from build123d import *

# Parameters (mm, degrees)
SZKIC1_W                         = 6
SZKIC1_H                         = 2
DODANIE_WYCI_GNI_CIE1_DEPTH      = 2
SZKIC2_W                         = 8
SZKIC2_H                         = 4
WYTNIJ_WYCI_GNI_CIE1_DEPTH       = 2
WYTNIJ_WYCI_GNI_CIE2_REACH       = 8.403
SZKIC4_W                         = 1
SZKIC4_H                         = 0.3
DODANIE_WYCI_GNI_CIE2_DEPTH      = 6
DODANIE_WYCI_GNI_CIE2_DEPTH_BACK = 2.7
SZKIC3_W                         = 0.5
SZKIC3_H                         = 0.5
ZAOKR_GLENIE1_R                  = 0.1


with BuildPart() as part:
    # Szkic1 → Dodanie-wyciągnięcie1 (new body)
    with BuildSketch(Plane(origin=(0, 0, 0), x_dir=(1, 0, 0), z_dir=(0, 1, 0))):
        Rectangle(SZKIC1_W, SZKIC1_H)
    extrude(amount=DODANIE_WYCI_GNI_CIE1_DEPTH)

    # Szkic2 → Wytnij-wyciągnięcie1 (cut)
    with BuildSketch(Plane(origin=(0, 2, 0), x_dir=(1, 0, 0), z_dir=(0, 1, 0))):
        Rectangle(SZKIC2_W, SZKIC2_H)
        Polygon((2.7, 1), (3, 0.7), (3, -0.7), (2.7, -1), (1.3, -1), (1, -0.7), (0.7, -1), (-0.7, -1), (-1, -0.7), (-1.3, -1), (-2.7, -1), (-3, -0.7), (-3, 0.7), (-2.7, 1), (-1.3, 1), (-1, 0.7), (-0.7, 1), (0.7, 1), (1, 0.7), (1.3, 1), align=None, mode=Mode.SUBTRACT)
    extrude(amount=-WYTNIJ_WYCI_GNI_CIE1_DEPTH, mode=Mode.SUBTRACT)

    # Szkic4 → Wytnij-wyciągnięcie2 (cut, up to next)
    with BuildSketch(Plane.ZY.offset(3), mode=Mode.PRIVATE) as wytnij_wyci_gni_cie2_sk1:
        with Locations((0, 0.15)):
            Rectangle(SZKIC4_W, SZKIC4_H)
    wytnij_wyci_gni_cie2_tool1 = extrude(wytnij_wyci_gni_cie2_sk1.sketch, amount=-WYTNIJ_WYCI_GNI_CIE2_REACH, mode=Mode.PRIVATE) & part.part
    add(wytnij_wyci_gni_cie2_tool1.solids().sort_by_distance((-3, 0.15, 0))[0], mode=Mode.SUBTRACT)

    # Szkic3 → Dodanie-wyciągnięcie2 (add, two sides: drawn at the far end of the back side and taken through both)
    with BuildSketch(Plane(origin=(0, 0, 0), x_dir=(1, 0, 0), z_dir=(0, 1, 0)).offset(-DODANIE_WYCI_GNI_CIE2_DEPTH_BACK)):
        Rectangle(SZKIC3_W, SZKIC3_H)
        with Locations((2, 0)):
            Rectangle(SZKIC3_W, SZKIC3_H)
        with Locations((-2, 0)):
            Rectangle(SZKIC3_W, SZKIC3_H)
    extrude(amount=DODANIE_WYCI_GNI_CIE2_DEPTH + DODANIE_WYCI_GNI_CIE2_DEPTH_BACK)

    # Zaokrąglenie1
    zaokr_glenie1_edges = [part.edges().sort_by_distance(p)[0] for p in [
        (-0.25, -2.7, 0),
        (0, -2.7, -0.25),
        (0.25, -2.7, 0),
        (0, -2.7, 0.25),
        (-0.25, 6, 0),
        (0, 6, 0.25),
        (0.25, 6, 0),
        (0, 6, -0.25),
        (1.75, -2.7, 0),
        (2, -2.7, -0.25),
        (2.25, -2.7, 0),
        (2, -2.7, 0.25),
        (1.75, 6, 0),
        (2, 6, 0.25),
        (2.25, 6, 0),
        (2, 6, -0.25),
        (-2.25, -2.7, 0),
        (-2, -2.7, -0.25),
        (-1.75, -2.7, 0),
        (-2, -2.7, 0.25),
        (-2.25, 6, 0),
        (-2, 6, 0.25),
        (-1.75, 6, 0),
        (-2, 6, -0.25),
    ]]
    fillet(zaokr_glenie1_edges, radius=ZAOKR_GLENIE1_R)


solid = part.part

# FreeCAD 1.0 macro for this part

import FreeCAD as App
import Part
import Sketcher
from FreeCAD import Vector
Q = App.Units.Quantity


def edges_at(feature, points):
    """Names of the edges that pass closest to the given points."""
    edges = feature.Shape.Edges
    near = lambda p: min(range(len(edges)), key=lambda i: edges[i].distToShape(Part.Vertex(*p))[0])
    return sorted({f"Edge{near(p) + 1}" for p in points})


def add_polygon(sketch, points):
    """Adds a closed chain of lines whose ends are joined by coincident constraints."""
    first, n = sketch.GeometryCount, len(points)
    for a, b in zip(points, points[1:] + points[:1]):
        sketch.addGeometry(Part.LineSegment(App.Vector(*a, 0), App.Vector(*b, 0)), False)
    for i in range(n):
        sketch.addConstraint(Sketcher.Constraint("Coincident", first + i, 2, first + (i + 1) % n, 1))

doc = App.newDocument("Part")
body = doc.addObject("PartDesign::Body", "Body")

sketch1 = body.newObject("Sketcher::SketchObject", "Sketch")
sketch1.AttachmentSupport = (doc.getObject("XZ_Plane"), [""])
sketch1.MapMode = "FlatFace"
add_polygon(sketch1, [(-3, -1), (-3, 1), (3, 1), (3, -1)])
sketch1.addConstraint([
    Sketcher.Constraint("Vertical", 0),
    Sketcher.Constraint("Horizontal", 1),
    Sketcher.Constraint("Vertical", 2),
    Sketcher.Constraint("Horizontal", 3),
    Sketcher.Constraint("Symmetric", 0, 2, 2, 2, -1, 1),
    Sketcher.Constraint("DistanceX", 1, 1, 1, 2, Q("6 mm")),
    Sketcher.Constraint("DistanceY", 0, 1, 0, 2, Q("2 mm")),
])
pad1 = body.newObject("PartDesign::Pad", "Pad")
pad1.Profile = sketch1
pad1.Length = 2
pad1.Reversed = True

sketch2 = body.newObject("Sketcher::SketchObject", "Sketch001")
sketch2.AttachmentSupport = (doc.getObject("XZ_Plane"), [""])
sketch2.MapMode = "FlatFace"
sketch2.AttachmentOffset = App.Placement(Vector(0, 0, -2), App.Rotation())
add_polygon(sketch2, [(-4, -2), (-4, 2), (4, 2), (4, -2)])
add_polygon(sketch2, [(1.3, -1), (2.7, -1), (3, -0.7), (3, 0.7), (2.7, 1), (1.3, 1), (1, 0.7), (0.7, 1), (-0.7, 1), (-1, 0.7), (-1.3, 1), (-2.7, 1), (-3, 0.7), (-3, -0.7), (-2.7, -1), (-1.3, -1), (-1, -0.7), (-0.7, -1), (0.7, -1), (1, -0.7)])
sketch2.addConstraint([
    Sketcher.Constraint("Vertical", 0),
    Sketcher.Constraint("Horizontal", 1),
    Sketcher.Constraint("Vertical", 2),
    Sketcher.Constraint("Horizontal", 3),
    Sketcher.Constraint("Horizontal", 4),
    Sketcher.Constraint("Vertical", 6),
    Sketcher.Constraint("Horizontal", 8),
    Sketcher.Constraint("Horizontal", 11),
    Sketcher.Constraint("Horizontal", 14),
    Sketcher.Constraint("Vertical", 16),
    Sketcher.Constraint("Horizontal", 18),
    Sketcher.Constraint("Horizontal", 21),
    Sketcher.Constraint("Symmetric", 0, 2, 2, 2, -1, 1),
    Sketcher.Constraint("Symmetric", 4, 2, 14, 2, -1, 1),
    Sketcher.Constraint("Symmetric", 5, 2, 15, 2, -1, 1),
    Sketcher.Constraint("Symmetric", 7, 2, 17, 2, -1, 1),
    Sketcher.Constraint("Symmetric", 9, 2, 19, 2, -1, 1),
    Sketcher.Constraint("Symmetric", 10, 2, 20, 2, -1, 1),
    Sketcher.Constraint("Symmetric", 12, 2, 22, 2, -1, 1),
    Sketcher.Constraint("Symmetric", 9, 2, 12, 2, -2),
    Sketcher.Constraint("Symmetric", 8, 2, 13, 2, -2),
    Sketcher.Constraint("Perpendicular", 5, 7),
    Sketcher.Constraint("Perpendicular", 7, 9),
    Sketcher.Constraint("Perpendicular", 9, 10),
    Sketcher.Constraint("Perpendicular", 10, 12),
    Sketcher.Constraint("Perpendicular", 12, 13),
    Sketcher.Constraint("Perpendicular", 15, 17),
    Sketcher.Constraint("Perpendicular", 17, 19),
    Sketcher.Constraint("Perpendicular", 20, 22),
    Sketcher.Constraint("Perpendicular", 22, 23),
    Sketcher.Constraint("Horizontal", 6, 2, 9, 2),
    Sketcher.Constraint("Horizontal", 8, 2, 10, 2),
    Sketcher.Constraint("Horizontal", 12, 2, 15, 2),
    Sketcher.Constraint("Equal", 8, 11),
    Sketcher.Constraint("Equal", 21, 6),
    Sketcher.Constraint("DistanceX", 1, 1, 1, 2, Q("8 mm")),
    Sketcher.Constraint("DistanceY", 0, 1, 0, 2, Q("4 mm")),
    Sketcher.Constraint("DistanceX", 4, 1, 4, 2, Q("1.4 mm")),
    Sketcher.Constraint("DistanceY", 4, 2, -1, 1, Q("1 mm")),
])
pocket1 = body.newObject("PartDesign::Pocket", "Pocket")
pocket1.Profile = sketch2
pocket1.Length = 2
pocket1.Reversed = True

sketch3 = body.newObject("Sketcher::SketchObject", "Sketch002")
sketch3.AttachmentSupport = (doc.getObject("YZ_Plane"), [""])
sketch3.MapMode = "FlatFace"
sketch3.AttachmentOffset = App.Placement(Vector(0, 0, -3), App.Rotation())
add_polygon(sketch3, [(0.3, -0.5), (0, -0.5), (0, 0.5), (0.3, 0.5)])
sketch3.addConstraint([
    Sketcher.Constraint("Horizontal", 0),
    Sketcher.Constraint("Vertical", 1),
    Sketcher.Constraint("Horizontal", 2),
    Sketcher.Constraint("Vertical", 3),
    Sketcher.Constraint("Symmetric", 0, 2, 1, 2, -1, 1),
    Sketcher.Constraint("DistanceY", 1, 1, 1, 2, Q("1 mm")),
    Sketcher.Constraint("DistanceX", 0, 2, 0, 1, Q("0.3 mm")),
])
pocket2 = body.newObject("PartDesign::Pocket", "Pocket001")
pocket2.Profile = sketch3
pocket2.Type = "UpToFirst"
pocket2.Reversed = True

sketch4 = body.newObject("Sketcher::SketchObject", "Sketch003")
sketch4.AttachmentSupport = (doc.getObject("XZ_Plane"), [""])
sketch4.MapMode = "FlatFace"
add_polygon(sketch4, [(-0.2, -0.2), (-0.2, 0.2), (0.2, 0.2), (0.2, -0.2)])
add_polygon(sketch4, [(1.8, -0.2), (1.8, 0.2), (2.2, 0.2), (2.2, -0.2)])
add_polygon(sketch4, [(-2.2, -0.2), (-2.2, 0.2), (-1.8, 0.2), (-1.8, -0.2)])
sketch4.addConstraint([
    Sketcher.Constraint("Vertical", 0),
    Sketcher.Constraint("Horizontal", 1),
    Sketcher.Constraint("Vertical", 2),
    Sketcher.Constraint("Horizontal", 3),
    Sketcher.Constraint("Vertical", 4),
    Sketcher.Constraint("Horizontal", 5),
    Sketcher.Constraint("Vertical", 6),
    Sketcher.Constraint("Horizontal", 7),
    Sketcher.Constraint("Vertical", 8),
    Sketcher.Constraint("Horizontal", 9),
    Sketcher.Constraint("Vertical", 10),
    Sketcher.Constraint("Horizontal", 11),
    Sketcher.Constraint("Symmetric", 0, 2, 2, 2, -1, 1),
    Sketcher.Constraint("Symmetric", 6, 2, 8, 2, -1, 1),
    Sketcher.Constraint("Symmetric", 4, 2, 10, 2, -1, 1),
    Sketcher.Constraint("Horizontal", 1, 2, 4, 2),
    Sketcher.Constraint("Horizontal", 3, 2, 6, 2),
    Sketcher.Constraint("Equal", 3, 5),
    Sketcher.Constraint("Equal", 11, 0),
    Sketcher.Constraint("DistanceX", 1, 1, 1, 2, Q("0.5 mm")),
    Sketcher.Constraint("DistanceX", 0, 2, 4, 2, Q("2 mm")),
])
pad2 = body.newObject("PartDesign::Pad", "Pad001")
pad2.Profile = sketch4
pad2.Type = "TwoLengths"
pad2.Length = 6
pad2.Length2 = 2.7
pad2.Reversed = True
doc.recompute()

fillet = body.newObject("PartDesign::Fillet", "Fillet")
fillet.Base = (pad2, edges_at(pad2, [
    (-0.25, -2.7, 0),
    (0, -2.7, -0.25),
    (0.25, -2.7, 0),
    (0, -2.7, 0.25),
    (-0.25, 6, 0),
    (0, 6, 0.25),
    (0.25, 6, 0),
    (0, 6, -0.25),
    (1.75, -2.7, 0),
    (2, -2.7, -0.25),
    (2.25, -2.7, 0),
    (2, -2.7, 0.25),
    (1.75, 6, 0),
    (2, 6, 0.25),
    (2.25, 6, 0),
    (2, 6, -0.25),
    (-2.25, -2.7, 0),
    (-2, -2.7, -0.25),
    (-1.75, -2.7, 0),
    (-2, -2.7, 0.25),
    (-2.25, 6, 0),
    (-2, 6, 0.25),
    (-1.75, 6, 0),
    (-2, 6, -0.25),
]))
fillet.Radius = 0.1

doc.recompute()
